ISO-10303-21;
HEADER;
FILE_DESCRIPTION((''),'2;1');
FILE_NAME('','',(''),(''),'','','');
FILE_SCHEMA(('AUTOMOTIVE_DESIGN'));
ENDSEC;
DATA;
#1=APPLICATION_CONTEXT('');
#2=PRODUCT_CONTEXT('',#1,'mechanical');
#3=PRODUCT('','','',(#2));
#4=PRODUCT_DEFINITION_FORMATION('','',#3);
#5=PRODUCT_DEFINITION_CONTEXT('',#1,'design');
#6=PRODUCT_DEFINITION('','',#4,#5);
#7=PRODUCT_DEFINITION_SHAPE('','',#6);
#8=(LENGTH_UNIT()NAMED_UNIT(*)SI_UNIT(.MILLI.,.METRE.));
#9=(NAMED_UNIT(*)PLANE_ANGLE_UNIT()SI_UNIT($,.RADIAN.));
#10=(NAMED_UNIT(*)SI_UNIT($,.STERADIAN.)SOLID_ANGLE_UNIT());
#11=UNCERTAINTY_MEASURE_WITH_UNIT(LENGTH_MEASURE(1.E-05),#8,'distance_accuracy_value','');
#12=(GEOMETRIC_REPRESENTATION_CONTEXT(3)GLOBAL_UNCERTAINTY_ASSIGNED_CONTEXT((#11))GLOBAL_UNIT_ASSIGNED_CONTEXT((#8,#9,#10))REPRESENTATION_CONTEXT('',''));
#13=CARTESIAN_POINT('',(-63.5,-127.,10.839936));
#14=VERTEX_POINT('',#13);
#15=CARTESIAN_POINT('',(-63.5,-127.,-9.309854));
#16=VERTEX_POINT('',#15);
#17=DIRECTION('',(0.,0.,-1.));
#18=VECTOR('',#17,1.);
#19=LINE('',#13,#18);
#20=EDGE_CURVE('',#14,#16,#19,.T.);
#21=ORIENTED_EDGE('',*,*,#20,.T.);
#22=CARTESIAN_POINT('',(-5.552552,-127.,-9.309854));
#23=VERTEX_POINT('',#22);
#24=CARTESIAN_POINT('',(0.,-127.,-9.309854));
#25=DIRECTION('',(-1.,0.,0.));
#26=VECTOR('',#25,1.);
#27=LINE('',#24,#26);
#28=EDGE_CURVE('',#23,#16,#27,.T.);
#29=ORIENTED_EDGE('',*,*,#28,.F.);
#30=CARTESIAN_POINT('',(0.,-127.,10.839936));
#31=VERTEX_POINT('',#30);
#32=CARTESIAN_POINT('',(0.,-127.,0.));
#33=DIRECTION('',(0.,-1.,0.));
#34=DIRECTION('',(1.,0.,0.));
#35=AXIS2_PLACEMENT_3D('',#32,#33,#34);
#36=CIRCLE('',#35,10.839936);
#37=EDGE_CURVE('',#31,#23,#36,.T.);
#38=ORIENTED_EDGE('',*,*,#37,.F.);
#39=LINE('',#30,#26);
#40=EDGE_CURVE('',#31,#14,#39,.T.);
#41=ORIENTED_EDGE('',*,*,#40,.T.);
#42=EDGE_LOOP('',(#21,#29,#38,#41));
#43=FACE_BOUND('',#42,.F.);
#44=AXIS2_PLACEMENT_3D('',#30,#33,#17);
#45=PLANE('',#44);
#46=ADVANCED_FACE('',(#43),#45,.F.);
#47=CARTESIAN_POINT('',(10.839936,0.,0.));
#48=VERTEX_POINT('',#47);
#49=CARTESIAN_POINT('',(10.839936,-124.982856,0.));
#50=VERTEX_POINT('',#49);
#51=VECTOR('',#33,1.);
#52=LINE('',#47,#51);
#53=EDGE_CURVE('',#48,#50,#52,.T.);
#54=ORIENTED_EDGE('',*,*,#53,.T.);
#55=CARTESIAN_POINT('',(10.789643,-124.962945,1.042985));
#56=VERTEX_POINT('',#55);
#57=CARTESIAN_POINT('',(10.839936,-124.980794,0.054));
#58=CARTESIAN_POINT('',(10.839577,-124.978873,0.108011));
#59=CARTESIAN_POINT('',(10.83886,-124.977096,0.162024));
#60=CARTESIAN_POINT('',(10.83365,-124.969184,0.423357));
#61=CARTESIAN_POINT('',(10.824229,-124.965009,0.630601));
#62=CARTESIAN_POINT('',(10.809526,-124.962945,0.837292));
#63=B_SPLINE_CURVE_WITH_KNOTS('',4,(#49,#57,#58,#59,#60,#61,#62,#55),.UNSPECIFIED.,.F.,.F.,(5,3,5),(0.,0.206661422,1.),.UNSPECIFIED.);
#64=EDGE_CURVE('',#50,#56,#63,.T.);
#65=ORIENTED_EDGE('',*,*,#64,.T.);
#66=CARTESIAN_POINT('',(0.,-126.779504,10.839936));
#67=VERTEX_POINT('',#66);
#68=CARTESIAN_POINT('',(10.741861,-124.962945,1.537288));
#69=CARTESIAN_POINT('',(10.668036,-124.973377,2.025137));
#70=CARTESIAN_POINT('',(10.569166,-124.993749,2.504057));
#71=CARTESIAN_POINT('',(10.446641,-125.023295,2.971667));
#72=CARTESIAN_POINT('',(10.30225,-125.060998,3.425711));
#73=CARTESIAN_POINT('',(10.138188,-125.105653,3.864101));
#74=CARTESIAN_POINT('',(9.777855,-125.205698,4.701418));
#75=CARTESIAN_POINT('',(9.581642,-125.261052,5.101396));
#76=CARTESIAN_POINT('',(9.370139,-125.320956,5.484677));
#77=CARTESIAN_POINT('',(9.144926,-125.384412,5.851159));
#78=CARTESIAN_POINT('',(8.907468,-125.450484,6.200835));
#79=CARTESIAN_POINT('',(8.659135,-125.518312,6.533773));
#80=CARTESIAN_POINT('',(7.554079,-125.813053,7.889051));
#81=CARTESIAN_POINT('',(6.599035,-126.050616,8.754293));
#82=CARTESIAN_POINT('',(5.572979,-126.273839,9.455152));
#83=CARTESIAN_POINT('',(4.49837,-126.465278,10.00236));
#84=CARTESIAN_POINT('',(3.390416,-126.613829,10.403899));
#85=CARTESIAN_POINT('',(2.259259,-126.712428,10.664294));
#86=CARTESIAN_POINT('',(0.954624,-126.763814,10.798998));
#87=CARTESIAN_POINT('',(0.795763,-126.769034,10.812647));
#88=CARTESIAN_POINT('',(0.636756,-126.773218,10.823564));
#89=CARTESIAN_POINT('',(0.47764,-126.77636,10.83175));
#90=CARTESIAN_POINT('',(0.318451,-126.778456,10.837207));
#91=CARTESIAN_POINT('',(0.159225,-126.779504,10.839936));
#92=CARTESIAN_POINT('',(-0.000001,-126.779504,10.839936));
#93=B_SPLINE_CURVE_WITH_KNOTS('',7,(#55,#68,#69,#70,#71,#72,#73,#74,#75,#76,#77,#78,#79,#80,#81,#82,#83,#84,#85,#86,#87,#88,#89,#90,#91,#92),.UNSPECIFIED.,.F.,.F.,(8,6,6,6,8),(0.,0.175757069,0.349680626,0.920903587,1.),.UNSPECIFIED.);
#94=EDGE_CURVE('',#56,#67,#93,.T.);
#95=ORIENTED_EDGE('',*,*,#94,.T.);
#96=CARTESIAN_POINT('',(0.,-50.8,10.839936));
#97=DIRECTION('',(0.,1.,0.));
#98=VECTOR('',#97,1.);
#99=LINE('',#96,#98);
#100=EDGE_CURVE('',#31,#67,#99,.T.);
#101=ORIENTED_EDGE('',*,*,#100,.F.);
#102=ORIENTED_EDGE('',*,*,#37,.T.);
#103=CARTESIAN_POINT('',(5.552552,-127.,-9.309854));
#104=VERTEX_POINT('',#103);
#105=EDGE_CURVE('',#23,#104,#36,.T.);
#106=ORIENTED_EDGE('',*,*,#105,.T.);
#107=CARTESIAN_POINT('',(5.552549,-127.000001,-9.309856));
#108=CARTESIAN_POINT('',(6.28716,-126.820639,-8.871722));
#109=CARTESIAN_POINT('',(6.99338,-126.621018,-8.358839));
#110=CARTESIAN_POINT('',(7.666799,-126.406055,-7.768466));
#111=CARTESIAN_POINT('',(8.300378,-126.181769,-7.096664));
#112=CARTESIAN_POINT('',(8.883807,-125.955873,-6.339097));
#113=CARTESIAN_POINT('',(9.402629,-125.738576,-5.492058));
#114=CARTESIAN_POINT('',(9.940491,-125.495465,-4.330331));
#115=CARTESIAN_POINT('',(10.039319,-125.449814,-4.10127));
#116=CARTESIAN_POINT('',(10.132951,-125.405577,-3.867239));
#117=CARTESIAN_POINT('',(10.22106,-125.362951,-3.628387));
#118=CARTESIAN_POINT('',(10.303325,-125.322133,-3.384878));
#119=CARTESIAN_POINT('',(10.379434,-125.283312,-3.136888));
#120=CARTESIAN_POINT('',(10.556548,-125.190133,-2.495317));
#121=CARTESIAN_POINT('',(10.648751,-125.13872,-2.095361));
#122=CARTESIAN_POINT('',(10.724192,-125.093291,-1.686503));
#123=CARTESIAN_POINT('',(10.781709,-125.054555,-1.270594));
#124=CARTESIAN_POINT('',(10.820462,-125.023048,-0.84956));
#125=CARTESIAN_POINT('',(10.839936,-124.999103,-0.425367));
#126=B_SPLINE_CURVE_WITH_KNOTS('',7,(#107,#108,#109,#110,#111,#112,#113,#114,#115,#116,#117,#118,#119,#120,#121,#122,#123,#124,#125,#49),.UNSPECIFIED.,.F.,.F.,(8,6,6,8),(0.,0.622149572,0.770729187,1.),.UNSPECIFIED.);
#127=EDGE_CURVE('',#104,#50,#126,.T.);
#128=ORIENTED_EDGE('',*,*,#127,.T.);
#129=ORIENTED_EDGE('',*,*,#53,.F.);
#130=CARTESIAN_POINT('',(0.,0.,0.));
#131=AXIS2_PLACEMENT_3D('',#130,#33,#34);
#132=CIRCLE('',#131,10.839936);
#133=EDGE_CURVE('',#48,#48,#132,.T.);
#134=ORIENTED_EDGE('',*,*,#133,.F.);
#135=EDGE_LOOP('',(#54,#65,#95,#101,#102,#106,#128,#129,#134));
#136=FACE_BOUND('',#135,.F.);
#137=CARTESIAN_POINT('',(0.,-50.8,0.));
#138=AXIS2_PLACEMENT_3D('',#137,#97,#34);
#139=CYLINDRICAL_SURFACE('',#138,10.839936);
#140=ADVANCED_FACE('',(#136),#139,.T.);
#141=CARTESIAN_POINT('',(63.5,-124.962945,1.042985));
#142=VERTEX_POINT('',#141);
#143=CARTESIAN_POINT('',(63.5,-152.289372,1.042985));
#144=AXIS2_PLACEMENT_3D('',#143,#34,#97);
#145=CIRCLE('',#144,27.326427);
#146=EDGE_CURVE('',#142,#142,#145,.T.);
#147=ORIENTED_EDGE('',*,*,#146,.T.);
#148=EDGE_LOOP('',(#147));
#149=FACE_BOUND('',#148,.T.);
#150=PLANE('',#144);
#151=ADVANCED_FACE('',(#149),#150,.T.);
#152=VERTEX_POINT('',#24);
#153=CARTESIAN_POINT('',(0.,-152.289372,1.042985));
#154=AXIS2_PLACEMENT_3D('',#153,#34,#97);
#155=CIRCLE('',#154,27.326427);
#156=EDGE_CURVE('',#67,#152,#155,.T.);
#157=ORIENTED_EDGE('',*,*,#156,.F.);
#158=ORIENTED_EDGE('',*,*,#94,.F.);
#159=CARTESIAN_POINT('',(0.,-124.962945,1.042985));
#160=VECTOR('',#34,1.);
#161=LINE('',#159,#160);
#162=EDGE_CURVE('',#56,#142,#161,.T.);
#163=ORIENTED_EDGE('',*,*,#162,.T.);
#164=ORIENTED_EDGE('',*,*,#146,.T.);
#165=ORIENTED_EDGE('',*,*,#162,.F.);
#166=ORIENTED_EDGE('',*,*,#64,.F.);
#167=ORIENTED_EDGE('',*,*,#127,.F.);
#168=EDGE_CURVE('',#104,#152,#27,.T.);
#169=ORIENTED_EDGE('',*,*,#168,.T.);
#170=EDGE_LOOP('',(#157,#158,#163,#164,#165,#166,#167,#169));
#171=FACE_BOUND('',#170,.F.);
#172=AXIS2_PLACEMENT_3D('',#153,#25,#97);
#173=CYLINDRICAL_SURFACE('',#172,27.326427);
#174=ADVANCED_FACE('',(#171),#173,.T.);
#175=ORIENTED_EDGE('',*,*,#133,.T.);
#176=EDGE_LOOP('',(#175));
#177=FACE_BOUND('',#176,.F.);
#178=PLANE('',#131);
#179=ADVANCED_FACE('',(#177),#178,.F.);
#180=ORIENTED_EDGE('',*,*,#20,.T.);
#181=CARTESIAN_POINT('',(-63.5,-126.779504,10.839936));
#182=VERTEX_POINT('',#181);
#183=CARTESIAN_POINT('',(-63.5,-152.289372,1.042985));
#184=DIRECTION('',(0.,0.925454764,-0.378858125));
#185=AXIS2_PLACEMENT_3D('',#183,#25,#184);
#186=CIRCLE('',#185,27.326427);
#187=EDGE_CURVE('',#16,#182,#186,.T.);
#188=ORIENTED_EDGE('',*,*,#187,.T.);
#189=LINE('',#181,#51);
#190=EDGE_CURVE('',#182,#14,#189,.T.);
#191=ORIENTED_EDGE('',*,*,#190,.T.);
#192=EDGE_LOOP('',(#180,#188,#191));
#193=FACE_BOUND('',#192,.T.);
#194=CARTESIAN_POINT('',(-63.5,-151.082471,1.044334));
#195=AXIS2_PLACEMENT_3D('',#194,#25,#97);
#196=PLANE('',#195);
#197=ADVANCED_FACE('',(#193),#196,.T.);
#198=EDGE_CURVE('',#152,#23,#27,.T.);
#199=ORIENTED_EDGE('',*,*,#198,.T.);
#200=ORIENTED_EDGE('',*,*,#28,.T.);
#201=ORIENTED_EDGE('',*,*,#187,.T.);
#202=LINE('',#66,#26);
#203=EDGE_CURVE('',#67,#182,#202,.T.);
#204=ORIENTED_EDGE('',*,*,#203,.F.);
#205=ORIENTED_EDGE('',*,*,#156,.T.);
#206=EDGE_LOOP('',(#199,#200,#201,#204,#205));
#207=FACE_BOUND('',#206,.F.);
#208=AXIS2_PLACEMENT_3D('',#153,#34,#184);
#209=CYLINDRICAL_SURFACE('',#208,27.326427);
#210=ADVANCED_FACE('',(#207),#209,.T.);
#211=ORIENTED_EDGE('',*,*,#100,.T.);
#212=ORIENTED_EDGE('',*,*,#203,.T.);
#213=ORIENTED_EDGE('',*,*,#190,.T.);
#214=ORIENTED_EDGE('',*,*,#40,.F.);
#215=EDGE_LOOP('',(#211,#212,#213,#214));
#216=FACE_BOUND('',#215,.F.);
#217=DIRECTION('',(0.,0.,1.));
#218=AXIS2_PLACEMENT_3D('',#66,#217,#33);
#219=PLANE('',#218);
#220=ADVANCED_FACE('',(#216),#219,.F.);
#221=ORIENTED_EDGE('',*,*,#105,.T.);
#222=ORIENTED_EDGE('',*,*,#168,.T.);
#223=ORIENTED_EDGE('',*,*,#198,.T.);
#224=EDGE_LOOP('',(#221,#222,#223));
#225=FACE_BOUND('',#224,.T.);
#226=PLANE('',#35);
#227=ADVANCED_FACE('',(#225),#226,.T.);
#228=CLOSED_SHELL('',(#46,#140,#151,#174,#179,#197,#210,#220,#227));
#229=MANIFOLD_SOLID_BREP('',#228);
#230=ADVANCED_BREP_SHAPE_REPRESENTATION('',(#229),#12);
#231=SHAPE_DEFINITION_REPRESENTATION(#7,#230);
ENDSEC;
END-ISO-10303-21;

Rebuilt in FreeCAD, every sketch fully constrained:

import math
import FreeCAD as App
import Part
import Sketcher

V = App.Vector
Q = App.Units.Quantity

doc = App.newDocument("Part")
body = doc.addObject("PartDesign::Body", "Body")

sketch1 = body.newObject("Sketcher::SketchObject", "Sketch")
sketch1.AttachmentSupport = (doc.getObject("XZ_Plane"), [""])
sketch1.MapMode = "FlatFace"
sketch1.addGeometry(Part.Circle(V(0, 0, 0), V(0, 0, 1), 11), False)
sketch1.addConstraint(Sketcher.Constraint("Coincident", 0, 3, -1, 1))
sketch1.addConstraint(Sketcher.Constraint("Diameter", 0, Q("21.679872 mm")))
pad1 = body.newObject("PartDesign::Pad", "Pad")
pad1.Profile = sketch1
pad1.Length = Q("2 in")

sketch2 = body.newObject("Sketcher::SketchObject", "Sketch001")
sketch2.AttachmentSupport = (doc.getObject("XZ_Plane"), [""])
sketch2.MapMode = "FlatFace"
sketch2.AttachmentOffset = App.Placement(V(0, 0, 2 * 25.4), App.Rotation())
sketch2.addGeometry(Part.Circle(V(0, 0, 0), V(0, 0, 1), 11), False)
sketch2.addConstraint(Sketcher.Constraint("Coincident", 0, 3, -1, 1))
sketch2.addConstraint(Sketcher.Constraint("Diameter", 0, Q("21.679872 mm")))
pad2 = body.newObject("PartDesign::Pad", "Pad001")
pad2.Profile = sketch2
pad2.Length = Q("3 in")

sketch3 = body.newObject("Sketcher::SketchObject", "Sketch002")
sketch3.AttachmentSupport = (doc.getObject("YZ_Plane"), [""])
sketch3.MapMode = "FlatFace"
sketch3.addGeometry(Part.Circle(V(-152, 1, 0), V(0, 0, 1), 27), False)
sketch3.addConstraint(Sketcher.Constraint("Diameter", 0, Q("54.652854 mm")))
sketch3.addConstraint(Sketcher.Constraint("DistanceX", 0, 3, -1, 1, Q("152.289372 mm")))
sketch3.addConstraint(Sketcher.Constraint("DistanceY", -1, 1, 0, 3, Q("1.042985 mm")))
pad3 = body.newObject("PartDesign::Pad", "Pad002")
pad3.Profile = sketch3
pad3.Length = Q("2.5 in")

sketch4 = body.newObject("Sketcher::SketchObject", "Sketch003")
sketch4.AttachmentSupport = (doc.getObject("YZ_Plane"), [""])
sketch4.MapMode = "FlatFace"
sketch4.addGeometry(Part.LineSegment(V(-126.78, 10.84, 0), V(-127, 10.84, 0)), False)
sketch4.addGeometry(Part.LineSegment(V(-127, 10.84, 0), V(-127, -9.31, 0)), False)
sketch4.addGeometry(Part.ArcOfCircle(Part.Circle(V(-152.29, 1.04, 0), V(0, 0, 1), 27.33), math.radians(21), math.radians(338)), False)
sketch4.addConstraint(Sketcher.Constraint("Coincident", 0, 2, 1, 1))
sketch4.addConstraint(Sketcher.Constraint("Coincident", 1, 2, 2, 2))
sketch4.addConstraint(Sketcher.Constraint("Coincident", 2, 1, 0, 1))
sketch4.addConstraint(Sketcher.Constraint("Horizontal", 0))
sketch4.addConstraint(Sketcher.Constraint("Vertical", 1))
sketch4.addConstraint(Sketcher.Constraint("DistanceX", 0, 2, -1, 1, Q("5 in")))
sketch4.addConstraint(Sketcher.Constraint("Radius", 2, Q("27.326427 mm")))
sketch4.addConstraint(Sketcher.Constraint("DistanceY", 1, 2, 1, 1, Q("20.14979 mm")))
sketch4.addConstraint(Sketcher.Constraint("DistanceX", 0, 2, 0, 1, Q("0.220496 mm")))
sketch4.addConstraint(Sketcher.Constraint("DistanceY", -1, 1, 2, 3, Q("1.042985 mm")))
pad4 = body.newObject("PartDesign::Pad", "Pad003")
pad4.Profile = sketch4
pad4.Length = Q("2.5 in")
pad4.Reversed = True

doc.recompute()
